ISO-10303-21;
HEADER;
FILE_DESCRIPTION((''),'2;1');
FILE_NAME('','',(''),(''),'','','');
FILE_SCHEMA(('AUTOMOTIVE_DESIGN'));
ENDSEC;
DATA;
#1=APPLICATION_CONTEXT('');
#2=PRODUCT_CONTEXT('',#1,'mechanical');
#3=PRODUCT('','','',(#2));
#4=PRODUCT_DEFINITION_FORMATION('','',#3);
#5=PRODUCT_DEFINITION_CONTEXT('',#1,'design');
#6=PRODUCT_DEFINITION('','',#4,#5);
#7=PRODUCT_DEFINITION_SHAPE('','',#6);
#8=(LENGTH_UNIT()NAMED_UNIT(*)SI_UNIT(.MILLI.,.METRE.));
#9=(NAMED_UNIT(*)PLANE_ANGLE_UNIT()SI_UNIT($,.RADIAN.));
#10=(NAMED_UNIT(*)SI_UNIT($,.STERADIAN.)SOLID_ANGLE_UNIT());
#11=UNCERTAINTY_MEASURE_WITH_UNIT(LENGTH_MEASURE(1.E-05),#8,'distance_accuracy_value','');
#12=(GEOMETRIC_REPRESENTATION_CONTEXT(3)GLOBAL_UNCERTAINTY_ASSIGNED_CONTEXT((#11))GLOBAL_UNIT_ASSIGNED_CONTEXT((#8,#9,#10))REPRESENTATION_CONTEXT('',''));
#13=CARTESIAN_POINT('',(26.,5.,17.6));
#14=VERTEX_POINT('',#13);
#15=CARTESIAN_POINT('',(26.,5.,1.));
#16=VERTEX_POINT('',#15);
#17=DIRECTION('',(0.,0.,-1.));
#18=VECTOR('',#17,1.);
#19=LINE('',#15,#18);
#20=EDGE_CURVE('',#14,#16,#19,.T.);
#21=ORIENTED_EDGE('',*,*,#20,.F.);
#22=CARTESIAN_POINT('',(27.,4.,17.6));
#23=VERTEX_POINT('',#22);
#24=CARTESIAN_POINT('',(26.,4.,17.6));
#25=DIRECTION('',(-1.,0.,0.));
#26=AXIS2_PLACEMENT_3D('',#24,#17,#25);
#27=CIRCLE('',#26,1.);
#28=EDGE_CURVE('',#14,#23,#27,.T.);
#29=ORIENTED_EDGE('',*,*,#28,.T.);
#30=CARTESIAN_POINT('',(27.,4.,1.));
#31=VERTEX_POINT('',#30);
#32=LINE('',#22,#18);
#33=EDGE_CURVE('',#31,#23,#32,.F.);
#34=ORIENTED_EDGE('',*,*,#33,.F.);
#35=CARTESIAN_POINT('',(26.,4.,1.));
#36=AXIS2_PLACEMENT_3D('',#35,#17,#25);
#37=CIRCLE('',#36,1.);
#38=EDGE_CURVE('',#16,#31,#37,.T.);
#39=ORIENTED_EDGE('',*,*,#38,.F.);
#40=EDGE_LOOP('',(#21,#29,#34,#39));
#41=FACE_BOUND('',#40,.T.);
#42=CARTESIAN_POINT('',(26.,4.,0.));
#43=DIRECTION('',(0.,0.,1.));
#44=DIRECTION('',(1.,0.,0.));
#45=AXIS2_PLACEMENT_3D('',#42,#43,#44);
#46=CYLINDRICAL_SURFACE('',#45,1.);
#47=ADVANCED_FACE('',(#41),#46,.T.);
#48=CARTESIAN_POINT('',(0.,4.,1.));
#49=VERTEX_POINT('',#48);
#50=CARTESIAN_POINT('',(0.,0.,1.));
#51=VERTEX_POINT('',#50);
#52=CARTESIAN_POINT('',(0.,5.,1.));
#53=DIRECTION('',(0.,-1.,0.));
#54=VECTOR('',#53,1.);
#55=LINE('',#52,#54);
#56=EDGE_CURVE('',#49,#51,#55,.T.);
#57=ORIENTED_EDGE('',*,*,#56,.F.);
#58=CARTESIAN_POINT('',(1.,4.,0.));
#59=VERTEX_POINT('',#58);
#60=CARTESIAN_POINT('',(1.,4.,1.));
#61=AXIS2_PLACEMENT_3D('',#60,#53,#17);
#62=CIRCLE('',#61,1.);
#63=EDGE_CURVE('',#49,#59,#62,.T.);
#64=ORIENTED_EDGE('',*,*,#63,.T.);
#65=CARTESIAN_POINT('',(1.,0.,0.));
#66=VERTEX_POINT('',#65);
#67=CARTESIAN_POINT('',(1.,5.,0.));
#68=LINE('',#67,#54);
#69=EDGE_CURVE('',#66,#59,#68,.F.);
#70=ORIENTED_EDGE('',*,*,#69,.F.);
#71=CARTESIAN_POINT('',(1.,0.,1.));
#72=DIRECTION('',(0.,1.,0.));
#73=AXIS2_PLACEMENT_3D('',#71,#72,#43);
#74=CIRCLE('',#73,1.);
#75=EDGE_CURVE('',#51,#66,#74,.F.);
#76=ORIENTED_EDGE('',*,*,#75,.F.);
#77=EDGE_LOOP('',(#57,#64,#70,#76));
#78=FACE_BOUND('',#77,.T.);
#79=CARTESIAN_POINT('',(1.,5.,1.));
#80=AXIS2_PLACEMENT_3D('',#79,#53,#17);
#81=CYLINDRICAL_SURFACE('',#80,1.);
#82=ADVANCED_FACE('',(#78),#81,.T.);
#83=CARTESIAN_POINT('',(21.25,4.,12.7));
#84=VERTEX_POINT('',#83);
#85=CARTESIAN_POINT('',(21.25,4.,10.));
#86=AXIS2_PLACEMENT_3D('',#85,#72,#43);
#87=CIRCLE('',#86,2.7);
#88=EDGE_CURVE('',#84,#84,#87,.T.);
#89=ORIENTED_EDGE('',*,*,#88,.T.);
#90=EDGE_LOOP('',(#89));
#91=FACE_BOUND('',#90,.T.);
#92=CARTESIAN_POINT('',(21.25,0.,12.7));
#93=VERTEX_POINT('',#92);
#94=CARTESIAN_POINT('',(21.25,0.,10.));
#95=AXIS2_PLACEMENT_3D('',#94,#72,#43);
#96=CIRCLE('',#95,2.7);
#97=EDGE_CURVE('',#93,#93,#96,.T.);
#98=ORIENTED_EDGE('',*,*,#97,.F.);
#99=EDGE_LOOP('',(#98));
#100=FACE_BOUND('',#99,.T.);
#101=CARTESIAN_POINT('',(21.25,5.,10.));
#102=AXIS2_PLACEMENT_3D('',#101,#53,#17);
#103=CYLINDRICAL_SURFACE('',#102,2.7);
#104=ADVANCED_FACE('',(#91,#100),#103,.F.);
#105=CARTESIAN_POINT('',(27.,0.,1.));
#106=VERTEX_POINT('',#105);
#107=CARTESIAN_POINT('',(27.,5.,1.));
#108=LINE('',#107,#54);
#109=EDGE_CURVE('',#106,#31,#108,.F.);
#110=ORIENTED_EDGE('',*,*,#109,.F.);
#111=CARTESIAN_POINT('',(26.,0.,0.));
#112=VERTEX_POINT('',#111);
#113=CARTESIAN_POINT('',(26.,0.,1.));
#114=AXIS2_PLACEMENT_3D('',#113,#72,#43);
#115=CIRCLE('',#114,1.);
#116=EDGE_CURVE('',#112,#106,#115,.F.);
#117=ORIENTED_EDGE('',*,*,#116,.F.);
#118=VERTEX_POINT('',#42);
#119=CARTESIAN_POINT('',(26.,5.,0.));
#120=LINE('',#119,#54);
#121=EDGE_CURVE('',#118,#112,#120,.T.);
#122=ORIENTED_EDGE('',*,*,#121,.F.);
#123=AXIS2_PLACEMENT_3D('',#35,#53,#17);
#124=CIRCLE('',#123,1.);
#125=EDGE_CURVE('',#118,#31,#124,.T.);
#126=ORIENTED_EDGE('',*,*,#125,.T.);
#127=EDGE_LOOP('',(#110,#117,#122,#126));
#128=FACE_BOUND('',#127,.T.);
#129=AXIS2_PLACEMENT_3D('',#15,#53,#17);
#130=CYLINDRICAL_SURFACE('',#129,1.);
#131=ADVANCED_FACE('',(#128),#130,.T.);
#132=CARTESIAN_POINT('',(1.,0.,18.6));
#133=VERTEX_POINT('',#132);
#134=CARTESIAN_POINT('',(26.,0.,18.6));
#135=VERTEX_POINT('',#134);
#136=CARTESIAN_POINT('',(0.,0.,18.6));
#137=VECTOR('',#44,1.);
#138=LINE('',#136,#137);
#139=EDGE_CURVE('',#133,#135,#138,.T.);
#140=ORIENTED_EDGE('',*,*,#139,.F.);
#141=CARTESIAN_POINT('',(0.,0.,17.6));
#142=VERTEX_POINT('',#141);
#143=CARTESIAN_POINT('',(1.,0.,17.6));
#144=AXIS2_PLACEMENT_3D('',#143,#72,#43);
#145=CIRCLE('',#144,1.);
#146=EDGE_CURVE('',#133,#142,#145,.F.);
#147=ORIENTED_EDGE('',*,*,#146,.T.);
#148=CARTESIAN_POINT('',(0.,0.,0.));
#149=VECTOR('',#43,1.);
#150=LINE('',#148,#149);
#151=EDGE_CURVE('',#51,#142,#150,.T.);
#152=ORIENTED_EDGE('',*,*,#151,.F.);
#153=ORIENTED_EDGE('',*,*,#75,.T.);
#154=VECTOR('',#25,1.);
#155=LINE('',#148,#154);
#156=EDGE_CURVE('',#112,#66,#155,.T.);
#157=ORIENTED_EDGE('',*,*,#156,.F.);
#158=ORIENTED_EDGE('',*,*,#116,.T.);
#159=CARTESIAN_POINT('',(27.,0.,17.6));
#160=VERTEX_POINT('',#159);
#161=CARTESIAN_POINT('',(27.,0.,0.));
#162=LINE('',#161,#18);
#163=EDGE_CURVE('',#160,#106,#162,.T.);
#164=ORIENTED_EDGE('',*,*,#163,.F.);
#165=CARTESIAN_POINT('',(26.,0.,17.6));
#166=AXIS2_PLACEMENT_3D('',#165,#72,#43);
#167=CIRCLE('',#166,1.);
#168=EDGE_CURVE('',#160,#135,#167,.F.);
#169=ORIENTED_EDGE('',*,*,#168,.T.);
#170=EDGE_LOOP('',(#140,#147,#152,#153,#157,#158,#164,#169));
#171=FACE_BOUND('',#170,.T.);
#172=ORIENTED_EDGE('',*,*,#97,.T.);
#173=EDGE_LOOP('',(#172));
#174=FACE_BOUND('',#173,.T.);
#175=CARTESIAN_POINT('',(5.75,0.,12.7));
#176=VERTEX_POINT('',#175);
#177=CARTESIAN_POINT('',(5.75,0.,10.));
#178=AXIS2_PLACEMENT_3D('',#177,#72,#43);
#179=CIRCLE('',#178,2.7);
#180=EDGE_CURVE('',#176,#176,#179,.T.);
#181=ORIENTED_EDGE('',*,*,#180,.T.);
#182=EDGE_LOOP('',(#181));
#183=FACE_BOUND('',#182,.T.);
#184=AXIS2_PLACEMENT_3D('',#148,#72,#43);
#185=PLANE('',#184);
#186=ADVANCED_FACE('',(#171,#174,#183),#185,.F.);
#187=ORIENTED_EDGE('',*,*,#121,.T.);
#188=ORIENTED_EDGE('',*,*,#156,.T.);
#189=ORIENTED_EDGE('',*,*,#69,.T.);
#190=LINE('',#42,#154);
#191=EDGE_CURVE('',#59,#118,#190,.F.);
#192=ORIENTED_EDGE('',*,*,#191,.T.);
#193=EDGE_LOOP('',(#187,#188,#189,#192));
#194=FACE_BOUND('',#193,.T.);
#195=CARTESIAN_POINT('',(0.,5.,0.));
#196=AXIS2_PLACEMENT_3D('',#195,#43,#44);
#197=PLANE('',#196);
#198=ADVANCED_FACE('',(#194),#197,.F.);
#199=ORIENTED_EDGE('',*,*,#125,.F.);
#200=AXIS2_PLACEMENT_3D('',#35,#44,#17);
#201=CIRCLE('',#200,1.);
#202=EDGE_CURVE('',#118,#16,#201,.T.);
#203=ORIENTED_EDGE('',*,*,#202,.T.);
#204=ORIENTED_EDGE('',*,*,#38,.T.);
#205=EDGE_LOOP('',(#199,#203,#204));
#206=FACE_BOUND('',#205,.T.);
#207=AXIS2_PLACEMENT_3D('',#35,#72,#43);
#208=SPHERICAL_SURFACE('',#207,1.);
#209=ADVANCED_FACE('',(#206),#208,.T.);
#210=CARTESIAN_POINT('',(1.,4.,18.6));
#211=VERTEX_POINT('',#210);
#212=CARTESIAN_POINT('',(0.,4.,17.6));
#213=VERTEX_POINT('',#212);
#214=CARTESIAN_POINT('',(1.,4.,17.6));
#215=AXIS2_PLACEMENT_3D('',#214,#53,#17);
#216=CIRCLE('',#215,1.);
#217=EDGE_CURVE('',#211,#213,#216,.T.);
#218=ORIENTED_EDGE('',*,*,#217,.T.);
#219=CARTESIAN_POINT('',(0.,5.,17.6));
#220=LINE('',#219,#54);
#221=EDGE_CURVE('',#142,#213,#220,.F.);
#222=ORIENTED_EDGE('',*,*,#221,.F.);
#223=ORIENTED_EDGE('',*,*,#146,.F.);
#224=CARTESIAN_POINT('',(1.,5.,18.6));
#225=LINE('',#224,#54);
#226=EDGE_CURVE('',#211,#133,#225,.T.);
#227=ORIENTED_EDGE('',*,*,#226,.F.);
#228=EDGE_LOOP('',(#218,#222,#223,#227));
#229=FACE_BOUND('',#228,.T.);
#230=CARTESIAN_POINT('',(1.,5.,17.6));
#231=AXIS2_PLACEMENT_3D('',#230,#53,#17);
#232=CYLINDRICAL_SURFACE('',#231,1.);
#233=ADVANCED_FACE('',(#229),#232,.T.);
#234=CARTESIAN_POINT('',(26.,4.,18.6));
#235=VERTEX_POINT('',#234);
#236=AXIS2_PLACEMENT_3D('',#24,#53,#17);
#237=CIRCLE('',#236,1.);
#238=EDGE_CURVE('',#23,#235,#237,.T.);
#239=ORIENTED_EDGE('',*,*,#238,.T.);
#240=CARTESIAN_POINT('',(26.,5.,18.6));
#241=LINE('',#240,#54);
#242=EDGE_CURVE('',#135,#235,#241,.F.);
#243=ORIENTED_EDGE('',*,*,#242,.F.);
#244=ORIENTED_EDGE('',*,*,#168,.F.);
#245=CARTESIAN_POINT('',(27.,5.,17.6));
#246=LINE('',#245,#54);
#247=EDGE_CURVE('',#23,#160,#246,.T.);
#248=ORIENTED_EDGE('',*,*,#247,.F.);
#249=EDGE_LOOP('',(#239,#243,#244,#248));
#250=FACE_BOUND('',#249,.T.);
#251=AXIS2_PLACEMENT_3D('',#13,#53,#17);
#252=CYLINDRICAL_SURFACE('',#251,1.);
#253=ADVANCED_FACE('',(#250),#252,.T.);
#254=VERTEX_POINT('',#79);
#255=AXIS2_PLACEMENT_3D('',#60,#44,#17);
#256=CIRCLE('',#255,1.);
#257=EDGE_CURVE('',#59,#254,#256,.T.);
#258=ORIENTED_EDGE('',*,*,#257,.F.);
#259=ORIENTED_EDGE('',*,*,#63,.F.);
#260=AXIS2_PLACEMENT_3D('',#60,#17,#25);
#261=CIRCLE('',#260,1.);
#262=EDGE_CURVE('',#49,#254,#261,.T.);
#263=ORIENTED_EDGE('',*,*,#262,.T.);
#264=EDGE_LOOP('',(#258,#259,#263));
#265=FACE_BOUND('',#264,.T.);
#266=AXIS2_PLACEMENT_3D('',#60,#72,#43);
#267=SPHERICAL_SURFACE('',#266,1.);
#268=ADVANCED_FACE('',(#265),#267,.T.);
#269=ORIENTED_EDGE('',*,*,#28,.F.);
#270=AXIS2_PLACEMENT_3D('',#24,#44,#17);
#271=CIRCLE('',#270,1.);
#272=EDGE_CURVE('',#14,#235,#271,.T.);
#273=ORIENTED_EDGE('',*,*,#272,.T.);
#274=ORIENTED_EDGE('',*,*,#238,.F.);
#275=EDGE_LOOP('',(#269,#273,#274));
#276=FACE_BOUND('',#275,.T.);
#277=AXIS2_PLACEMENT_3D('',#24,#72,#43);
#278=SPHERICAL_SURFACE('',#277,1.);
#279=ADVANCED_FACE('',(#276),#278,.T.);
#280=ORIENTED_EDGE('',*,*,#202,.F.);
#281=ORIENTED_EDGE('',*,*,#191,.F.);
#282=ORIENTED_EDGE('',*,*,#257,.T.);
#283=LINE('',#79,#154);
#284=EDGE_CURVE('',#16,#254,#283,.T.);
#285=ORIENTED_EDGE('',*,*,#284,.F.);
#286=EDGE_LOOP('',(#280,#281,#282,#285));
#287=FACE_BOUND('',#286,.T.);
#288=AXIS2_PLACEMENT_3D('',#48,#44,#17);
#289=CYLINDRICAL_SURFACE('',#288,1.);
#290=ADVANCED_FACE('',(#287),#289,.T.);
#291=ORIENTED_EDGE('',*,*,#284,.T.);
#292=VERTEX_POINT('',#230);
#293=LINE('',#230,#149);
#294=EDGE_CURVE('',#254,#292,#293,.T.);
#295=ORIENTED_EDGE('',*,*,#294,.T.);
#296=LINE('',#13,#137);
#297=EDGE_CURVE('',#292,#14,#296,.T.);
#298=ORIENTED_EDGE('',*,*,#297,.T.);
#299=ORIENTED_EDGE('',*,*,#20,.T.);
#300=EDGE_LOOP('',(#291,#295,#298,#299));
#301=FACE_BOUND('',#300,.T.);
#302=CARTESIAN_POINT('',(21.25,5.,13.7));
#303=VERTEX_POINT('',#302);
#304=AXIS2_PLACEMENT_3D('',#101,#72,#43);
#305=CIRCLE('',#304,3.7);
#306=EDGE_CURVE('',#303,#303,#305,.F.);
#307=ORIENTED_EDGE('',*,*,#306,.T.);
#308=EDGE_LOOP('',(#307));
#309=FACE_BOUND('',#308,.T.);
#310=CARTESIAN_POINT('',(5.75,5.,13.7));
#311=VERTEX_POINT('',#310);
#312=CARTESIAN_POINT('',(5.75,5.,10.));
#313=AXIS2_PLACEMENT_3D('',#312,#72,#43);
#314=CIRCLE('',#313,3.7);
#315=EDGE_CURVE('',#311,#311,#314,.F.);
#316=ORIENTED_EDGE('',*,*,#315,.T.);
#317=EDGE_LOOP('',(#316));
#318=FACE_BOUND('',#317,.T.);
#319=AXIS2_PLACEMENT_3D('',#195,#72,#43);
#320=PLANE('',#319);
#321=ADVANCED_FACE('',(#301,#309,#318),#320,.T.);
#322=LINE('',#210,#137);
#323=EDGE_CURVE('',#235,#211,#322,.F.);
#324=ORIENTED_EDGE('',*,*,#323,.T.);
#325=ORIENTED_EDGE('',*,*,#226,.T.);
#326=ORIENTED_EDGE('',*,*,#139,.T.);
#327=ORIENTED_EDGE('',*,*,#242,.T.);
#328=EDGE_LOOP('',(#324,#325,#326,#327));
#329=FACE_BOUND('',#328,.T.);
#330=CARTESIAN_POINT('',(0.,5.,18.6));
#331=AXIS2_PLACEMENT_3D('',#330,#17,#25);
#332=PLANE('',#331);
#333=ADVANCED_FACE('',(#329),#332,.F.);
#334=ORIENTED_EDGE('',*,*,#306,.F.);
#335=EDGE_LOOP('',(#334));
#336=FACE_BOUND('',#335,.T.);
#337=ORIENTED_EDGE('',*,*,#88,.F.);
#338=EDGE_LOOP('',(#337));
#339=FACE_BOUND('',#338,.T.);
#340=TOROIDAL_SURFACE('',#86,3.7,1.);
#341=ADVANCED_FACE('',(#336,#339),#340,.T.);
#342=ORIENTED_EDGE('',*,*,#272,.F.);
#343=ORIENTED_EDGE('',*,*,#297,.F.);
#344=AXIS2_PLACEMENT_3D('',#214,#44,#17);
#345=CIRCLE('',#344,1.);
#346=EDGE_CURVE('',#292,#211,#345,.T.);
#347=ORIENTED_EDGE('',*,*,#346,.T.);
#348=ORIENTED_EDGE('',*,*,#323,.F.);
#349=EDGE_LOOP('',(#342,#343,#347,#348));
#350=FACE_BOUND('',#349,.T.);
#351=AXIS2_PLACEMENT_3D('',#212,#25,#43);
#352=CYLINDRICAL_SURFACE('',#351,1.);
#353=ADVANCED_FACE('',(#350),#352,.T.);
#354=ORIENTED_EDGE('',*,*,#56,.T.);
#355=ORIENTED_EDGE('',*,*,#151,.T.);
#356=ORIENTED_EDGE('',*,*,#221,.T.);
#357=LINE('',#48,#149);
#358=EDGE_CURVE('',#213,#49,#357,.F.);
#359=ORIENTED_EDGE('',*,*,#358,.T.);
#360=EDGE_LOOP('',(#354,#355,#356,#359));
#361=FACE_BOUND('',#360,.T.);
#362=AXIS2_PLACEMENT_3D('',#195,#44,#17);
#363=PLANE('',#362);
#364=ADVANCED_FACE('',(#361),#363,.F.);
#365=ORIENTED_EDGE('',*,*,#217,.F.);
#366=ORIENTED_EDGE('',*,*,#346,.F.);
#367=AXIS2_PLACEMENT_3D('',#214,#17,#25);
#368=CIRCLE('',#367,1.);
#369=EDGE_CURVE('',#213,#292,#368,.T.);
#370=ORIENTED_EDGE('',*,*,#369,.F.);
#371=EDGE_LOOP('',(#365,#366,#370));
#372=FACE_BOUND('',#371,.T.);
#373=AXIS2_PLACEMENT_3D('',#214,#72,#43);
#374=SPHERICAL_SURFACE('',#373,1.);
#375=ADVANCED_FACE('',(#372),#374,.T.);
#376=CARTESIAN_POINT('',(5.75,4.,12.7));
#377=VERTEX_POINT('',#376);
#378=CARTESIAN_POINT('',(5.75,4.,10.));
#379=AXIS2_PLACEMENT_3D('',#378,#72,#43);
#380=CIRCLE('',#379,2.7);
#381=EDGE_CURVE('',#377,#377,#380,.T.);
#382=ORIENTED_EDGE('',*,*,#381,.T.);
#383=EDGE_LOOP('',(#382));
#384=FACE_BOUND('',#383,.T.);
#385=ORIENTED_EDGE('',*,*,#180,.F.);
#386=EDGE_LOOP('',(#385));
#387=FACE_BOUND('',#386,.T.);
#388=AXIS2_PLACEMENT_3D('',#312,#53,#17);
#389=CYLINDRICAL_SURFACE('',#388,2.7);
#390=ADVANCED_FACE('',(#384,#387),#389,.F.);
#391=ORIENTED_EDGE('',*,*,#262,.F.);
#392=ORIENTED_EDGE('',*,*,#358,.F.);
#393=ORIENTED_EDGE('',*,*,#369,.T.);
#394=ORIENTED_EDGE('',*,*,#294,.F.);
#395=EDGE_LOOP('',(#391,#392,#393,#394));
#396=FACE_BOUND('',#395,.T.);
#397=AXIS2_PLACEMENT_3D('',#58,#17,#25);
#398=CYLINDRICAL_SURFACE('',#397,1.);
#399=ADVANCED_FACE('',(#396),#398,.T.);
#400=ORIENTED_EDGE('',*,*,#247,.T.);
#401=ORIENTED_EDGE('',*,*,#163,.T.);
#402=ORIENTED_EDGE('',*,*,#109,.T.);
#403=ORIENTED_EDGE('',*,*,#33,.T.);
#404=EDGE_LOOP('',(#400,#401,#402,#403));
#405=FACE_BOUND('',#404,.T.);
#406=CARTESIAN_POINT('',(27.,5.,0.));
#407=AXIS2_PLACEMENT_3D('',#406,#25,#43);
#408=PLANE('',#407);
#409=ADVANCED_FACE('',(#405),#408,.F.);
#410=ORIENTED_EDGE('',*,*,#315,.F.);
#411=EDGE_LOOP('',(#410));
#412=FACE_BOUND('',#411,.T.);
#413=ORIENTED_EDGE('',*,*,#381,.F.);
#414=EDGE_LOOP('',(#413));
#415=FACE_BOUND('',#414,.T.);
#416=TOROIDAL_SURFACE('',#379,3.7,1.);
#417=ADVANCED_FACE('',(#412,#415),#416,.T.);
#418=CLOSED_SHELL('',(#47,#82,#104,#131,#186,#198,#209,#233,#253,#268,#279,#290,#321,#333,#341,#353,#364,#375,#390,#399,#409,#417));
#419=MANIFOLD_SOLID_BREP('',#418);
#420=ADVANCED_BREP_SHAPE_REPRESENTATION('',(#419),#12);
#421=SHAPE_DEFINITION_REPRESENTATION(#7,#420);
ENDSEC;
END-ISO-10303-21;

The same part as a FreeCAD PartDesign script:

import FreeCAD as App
import Part
import Sketcher

V = App.Vector
Q = App.Units.Quantity


def edges_at(feature, points):
    """Names of the edges that pass closest to the given points."""
    edges = feature.Shape.Edges
    near = lambda p: min(range(len(edges)), key=lambda i: edges[i].distToShape(Part.Vertex(*p))[0])
    return sorted({f"Edge{near(p) + 1}" for p in points})

doc = App.newDocument("Part")
body = doc.addObject("PartDesign::Body", "Body")

sketch1 = body.newObject("Sketcher::SketchObject", "Sketch")
sketch1.AttachmentSupport = (doc.getObject("XZ_Plane"), [""])
sketch1.MapMode = "FlatFace"
sketch1.addGeometry([
    Part.LineSegment(V(0, 0, 0), V(0, 18.6, 0)),
    Part.LineSegment(V(0, 18.6, 0), V(27, 18.6, 0)),
    Part.LineSegment(V(27, 18.6, 0), V(27, 0, 0)),
    Part.LineSegment(V(27, 0, 0), V(0, 0, 0)),
    Part.Circle(V(5.8, 10, 0), V(0, 0, 1), 2.7),
    Part.Circle(V(21.2, 10, 0), V(0, 0, 1), 2.7),
], False)
sketch1.addConstraint([
    Sketcher.Constraint("Coincident", 0, 2, 1, 1),
    Sketcher.Constraint("Coincident", 1, 2, 2, 1),
    Sketcher.Constraint("Coincident", 2, 2, 3, 1),
    Sketcher.Constraint("Coincident", 3, 2, 0, 1),
    Sketcher.Constraint("Vertical", 0),
    Sketcher.Constraint("Horizontal", 1),
    Sketcher.Constraint("Vertical", 2),
    Sketcher.Constraint("Horizontal", 3),
    Sketcher.Constraint("Coincident", 3, 2, -1, 1),
    Sketcher.Constraint("Equal", 4, 5),
    Sketcher.Constraint("Horizontal", 4, 3, 5, 3),
    Sketcher.Constraint("Diameter", 4, Q("5.4 mm")),
    Sketcher.Constraint("DistanceX", 1, 1, 1, 2, Q("27 mm")),
    Sketcher.Constraint("DistanceY", 0, 1, 0, 2, Q("18.6 mm")),
    Sketcher.Constraint("DistanceY", -1, 1, 4, 3, Q("10 mm")),
    Sketcher.Constraint("DistanceX", 4, 3, 5, 3, Q("15.5 mm")),
    Sketcher.Constraint("DistanceX", -1, 1, 4, 3, Q("5.75 mm")),
])
pad1 = body.newObject("PartDesign::Pad", "Pad")
pad1.Profile = sketch1
pad1.Length = 5
pad1.Reversed = True
doc.recompute()

fillet = body.newObject("PartDesign::Fillet", "Fillet")
fillet.Base = (pad1, edges_at(pad1, [
    (0, 2.5, 0),
    (27, 2.5, 0),
    (27, 2.5, 18.6),
    (0, 2.5, 18.6),
]))
fillet.Radius = 1
doc.recompute()

fillet2 = body.newObject("PartDesign::Fillet", "Fillet001")
fillet2.Base = (fillet, edges_at(fillet, [
    (5.75, 5, 7.3),
    (21.25, 5, 7.3),
    (0, 5, 9.3),
    (13.5, 5, 0),
    (13.5, 5, 18.6),
    (27, 5, 9.3),
    (26.707, 5, 18.307),
    (0.293, 5, 18.307),
    (26.707, 5, 0.293),
    (0.293, 5, 0.293),
]))
fillet2.Radius = 1

doc.recompute()
